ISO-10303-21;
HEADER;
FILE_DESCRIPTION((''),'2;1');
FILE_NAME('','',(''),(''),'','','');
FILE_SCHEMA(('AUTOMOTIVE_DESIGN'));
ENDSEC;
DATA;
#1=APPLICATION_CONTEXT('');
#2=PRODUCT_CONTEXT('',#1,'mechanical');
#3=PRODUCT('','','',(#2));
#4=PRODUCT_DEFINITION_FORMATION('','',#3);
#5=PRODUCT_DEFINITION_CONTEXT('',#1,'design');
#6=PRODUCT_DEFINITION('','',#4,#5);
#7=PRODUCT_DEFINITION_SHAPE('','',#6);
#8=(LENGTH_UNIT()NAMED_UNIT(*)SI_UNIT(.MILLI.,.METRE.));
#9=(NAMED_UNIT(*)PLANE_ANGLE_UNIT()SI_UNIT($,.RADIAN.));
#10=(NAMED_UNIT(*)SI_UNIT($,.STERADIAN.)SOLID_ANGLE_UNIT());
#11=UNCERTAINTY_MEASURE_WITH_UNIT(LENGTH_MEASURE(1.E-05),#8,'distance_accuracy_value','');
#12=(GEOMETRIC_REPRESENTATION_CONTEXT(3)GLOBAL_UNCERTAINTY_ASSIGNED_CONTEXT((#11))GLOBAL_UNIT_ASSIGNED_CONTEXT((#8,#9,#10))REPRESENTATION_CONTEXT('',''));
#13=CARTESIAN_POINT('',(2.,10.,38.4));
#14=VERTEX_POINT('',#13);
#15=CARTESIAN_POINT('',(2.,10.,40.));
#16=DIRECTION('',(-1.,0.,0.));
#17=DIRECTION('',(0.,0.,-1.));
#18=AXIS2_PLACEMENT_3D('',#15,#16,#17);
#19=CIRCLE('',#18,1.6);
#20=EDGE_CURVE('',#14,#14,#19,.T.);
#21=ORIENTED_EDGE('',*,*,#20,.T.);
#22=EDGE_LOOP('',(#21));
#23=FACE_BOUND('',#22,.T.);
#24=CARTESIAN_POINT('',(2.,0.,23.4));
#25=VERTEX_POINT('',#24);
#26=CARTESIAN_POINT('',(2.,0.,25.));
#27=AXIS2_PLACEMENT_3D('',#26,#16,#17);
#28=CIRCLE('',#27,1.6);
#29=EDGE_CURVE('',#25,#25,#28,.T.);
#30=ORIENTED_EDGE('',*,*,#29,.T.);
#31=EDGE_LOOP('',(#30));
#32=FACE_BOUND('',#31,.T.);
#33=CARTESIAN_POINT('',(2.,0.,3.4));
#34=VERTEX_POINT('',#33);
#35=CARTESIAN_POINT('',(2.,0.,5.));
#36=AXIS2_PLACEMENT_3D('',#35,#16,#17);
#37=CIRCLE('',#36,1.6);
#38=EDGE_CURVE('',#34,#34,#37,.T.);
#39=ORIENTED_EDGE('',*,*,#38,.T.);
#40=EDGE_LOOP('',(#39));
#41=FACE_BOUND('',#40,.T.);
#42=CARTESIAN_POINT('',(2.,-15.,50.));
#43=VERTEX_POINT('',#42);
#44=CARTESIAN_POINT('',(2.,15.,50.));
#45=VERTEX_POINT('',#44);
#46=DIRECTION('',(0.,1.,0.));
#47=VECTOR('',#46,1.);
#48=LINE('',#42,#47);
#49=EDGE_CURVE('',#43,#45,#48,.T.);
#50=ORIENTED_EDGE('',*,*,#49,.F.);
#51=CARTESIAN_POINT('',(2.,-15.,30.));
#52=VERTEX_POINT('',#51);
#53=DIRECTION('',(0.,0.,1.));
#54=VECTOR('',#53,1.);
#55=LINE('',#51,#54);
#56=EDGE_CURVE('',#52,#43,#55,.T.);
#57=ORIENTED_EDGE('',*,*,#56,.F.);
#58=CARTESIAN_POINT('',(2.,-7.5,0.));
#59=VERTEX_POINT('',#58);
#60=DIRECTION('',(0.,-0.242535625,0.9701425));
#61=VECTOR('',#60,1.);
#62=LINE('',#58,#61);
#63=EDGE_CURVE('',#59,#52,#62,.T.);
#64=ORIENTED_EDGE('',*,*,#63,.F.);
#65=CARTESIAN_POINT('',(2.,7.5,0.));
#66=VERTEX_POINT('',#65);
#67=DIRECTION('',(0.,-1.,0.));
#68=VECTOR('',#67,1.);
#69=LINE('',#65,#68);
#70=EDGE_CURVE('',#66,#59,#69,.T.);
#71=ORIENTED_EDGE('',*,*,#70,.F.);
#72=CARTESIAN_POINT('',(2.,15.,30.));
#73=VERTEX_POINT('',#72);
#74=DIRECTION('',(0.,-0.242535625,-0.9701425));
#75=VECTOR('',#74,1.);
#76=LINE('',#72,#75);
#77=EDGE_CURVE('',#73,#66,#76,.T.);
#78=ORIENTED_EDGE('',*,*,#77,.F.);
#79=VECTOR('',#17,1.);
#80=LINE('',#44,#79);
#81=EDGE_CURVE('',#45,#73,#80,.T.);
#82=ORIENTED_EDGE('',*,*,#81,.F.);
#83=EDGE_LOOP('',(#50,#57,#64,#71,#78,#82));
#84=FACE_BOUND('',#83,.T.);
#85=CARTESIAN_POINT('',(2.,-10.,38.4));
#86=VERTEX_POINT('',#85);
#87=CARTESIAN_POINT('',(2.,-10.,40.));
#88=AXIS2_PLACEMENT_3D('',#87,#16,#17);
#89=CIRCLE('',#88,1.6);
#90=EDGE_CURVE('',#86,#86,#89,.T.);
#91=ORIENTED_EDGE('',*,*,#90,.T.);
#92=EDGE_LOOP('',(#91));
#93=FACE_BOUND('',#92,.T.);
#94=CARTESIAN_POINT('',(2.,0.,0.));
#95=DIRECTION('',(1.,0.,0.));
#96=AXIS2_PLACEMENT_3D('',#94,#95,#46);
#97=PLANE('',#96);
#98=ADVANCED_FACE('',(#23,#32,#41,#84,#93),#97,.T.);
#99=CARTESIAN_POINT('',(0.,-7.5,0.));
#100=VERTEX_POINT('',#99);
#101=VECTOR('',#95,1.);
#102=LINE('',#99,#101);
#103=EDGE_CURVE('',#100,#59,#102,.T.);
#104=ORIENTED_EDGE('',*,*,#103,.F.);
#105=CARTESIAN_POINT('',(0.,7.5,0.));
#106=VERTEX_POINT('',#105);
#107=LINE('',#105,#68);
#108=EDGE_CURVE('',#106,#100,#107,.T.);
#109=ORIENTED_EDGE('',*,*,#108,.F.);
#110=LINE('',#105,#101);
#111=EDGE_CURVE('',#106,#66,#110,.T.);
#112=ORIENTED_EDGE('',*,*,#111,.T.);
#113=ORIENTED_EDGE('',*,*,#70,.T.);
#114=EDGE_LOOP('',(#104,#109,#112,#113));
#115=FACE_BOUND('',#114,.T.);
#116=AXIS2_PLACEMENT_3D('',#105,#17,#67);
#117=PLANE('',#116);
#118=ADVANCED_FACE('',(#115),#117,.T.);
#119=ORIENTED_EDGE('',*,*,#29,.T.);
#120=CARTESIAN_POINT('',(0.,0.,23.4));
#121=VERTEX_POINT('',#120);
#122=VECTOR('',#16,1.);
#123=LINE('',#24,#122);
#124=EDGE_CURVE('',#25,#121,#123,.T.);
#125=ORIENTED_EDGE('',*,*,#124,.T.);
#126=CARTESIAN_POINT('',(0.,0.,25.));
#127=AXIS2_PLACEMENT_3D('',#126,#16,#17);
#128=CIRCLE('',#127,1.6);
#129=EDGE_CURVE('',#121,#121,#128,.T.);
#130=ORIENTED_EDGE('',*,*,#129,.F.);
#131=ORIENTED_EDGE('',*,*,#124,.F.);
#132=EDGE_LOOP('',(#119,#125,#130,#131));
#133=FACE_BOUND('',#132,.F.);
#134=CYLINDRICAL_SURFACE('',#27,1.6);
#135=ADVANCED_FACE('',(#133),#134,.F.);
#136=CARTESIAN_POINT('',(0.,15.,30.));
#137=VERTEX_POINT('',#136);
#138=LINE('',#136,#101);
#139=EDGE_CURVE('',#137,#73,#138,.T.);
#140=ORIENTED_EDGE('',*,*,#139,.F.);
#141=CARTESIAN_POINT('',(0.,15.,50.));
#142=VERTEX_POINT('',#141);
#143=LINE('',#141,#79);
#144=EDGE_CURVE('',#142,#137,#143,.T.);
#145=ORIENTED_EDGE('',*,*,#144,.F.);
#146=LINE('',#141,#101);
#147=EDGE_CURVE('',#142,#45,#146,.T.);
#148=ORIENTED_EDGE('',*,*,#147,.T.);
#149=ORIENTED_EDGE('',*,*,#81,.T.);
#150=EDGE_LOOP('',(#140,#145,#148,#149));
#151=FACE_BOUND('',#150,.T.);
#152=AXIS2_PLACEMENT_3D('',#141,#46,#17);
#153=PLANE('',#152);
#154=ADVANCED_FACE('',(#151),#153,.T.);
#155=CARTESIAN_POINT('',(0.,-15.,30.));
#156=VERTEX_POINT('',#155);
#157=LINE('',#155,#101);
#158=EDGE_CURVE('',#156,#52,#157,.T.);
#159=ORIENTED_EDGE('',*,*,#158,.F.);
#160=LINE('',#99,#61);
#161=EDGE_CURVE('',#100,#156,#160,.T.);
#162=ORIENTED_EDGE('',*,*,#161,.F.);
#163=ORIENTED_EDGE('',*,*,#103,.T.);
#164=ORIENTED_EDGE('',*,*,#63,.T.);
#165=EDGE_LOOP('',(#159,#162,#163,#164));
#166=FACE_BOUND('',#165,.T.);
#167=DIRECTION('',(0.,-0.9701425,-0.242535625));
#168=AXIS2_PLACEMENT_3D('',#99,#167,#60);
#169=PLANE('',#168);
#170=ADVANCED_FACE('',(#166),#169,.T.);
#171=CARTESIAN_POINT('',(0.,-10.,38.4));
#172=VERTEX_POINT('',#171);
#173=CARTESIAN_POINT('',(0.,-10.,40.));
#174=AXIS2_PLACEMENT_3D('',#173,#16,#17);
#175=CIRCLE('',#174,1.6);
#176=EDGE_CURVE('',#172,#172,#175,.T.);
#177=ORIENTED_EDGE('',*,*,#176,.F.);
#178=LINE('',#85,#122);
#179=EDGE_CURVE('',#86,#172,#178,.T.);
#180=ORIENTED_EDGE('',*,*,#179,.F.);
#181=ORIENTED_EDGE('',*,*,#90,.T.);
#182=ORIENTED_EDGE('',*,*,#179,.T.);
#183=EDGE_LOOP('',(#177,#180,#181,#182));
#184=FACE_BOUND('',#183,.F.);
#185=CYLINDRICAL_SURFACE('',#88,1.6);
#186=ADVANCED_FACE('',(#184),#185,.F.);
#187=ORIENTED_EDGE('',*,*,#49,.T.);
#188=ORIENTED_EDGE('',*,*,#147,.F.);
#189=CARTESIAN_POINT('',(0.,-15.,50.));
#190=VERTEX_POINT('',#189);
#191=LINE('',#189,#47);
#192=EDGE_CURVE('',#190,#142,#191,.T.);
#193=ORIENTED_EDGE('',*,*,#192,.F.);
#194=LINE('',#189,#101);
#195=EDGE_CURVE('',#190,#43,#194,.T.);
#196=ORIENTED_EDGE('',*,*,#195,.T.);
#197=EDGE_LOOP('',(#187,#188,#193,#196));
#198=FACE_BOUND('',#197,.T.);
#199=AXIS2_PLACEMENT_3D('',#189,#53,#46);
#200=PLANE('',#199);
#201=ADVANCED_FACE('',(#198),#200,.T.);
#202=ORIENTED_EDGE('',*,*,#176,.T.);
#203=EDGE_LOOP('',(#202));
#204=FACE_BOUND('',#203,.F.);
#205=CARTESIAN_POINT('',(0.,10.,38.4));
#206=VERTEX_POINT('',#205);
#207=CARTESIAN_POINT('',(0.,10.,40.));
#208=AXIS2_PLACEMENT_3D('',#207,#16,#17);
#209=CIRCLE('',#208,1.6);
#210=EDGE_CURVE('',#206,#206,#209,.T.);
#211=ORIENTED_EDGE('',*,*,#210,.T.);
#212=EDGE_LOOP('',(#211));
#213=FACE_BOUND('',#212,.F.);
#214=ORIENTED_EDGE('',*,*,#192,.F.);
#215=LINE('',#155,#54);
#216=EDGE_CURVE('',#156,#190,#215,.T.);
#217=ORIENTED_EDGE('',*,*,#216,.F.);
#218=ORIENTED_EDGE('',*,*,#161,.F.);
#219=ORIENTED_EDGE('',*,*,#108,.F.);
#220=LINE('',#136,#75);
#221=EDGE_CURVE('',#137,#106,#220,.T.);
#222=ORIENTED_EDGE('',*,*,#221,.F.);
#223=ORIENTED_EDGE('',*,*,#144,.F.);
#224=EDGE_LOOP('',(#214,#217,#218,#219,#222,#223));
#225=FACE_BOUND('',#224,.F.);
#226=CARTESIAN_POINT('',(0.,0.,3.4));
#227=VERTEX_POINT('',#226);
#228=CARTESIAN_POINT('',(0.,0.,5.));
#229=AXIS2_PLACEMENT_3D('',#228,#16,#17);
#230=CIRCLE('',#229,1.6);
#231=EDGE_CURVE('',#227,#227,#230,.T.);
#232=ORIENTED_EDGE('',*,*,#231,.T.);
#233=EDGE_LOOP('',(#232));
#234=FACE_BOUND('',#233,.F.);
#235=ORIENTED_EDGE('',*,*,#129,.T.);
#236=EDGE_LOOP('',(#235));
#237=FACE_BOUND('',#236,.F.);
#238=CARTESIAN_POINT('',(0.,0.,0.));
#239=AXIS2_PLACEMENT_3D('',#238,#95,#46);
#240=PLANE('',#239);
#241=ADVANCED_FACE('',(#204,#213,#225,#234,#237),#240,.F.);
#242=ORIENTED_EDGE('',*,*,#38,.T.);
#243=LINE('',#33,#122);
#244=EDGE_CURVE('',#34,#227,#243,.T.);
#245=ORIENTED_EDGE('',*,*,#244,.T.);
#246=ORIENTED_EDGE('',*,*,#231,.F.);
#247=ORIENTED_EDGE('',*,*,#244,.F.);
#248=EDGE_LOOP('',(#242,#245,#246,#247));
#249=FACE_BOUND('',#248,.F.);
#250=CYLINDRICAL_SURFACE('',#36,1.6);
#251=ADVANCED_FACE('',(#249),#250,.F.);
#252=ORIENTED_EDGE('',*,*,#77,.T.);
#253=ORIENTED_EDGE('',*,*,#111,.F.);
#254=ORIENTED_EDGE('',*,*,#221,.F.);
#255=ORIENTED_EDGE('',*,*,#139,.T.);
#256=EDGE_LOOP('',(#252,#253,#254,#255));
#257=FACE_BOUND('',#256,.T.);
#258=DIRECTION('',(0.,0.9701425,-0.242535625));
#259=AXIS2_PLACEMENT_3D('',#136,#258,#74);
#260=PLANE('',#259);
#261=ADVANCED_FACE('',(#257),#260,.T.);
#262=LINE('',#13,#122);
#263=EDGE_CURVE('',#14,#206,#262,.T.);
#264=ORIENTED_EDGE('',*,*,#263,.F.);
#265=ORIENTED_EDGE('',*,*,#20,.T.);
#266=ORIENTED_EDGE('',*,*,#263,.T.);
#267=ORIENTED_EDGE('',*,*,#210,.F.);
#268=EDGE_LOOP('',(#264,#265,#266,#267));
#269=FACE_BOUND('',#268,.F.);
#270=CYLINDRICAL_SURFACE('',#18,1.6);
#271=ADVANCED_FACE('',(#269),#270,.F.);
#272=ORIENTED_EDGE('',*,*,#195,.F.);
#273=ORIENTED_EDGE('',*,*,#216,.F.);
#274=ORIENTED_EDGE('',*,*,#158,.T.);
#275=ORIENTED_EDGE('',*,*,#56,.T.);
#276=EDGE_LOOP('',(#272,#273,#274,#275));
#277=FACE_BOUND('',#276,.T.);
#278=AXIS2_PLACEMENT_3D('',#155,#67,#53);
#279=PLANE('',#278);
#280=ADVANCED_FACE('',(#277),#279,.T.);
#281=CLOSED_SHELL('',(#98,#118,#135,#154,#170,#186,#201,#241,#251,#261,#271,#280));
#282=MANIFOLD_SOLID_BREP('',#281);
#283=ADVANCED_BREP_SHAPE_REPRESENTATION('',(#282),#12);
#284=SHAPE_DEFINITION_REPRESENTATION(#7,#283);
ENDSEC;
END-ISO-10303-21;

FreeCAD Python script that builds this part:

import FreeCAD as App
import Part
import Sketcher

V = App.Vector
Q = App.Units.Quantity

doc = App.newDocument("Part")
body = doc.addObject("PartDesign::Body", "Body")

sketch1 = body.newObject("Sketcher::SketchObject", "Sketch")
sketch1.AttachmentSupport = (doc.getObject("YZ_Plane"), [""])
sketch1.MapMode = "FlatFace"
sketch1.addGeometry([
    Part.LineSegment(V(-15, 50, 0), V(-15, 30, 0)),
    Part.LineSegment(V(-15, 30, 0), V(-8, 0, 0)),
    Part.LineSegment(V(-8, 0, 0), V(8, 0, 0)),
    Part.LineSegment(V(8, 0, 0), V(15, 30, 0)),
    Part.LineSegment(V(15, 30, 0), V(15, 50, 0)),
    Part.LineSegment(V(15, 50, 0), V(-15, 50, 0)),
], False)
sketch1.addConstraint([
    Sketcher.Constraint("Coincident", 0, 2, 1, 1),
    Sketcher.Constraint("Coincident", 1, 2, 2, 1),
    Sketcher.Constraint("Coincident", 2, 2, 3, 1),
    Sketcher.Constraint("Coincident", 3, 2, 4, 1),
    Sketcher.Constraint("Coincident", 4, 2, 5, 1),
    Sketcher.Constraint("Coincident", 5, 2, 0, 1),
    Sketcher.Constraint("Vertical", 0),
    Sketcher.Constraint("Horizontal", 2),
    Sketcher.Constraint("Vertical", 4),
    Sketcher.Constraint("Horizontal", 5),
    Sketcher.Constraint("Symmetric", 1, 2, 2, 2, -1, 1),
    Sketcher.Constraint("Symmetric", 0, 2, 3, 2, -2),
    Sketcher.Constraint("DistanceX", 2, 1, 2, 2, Q("15 mm")),
    Sketcher.Constraint("DistanceX", 5, 2, 5, 1, Q("30 mm")),
    Sketcher.Constraint("DistanceY", 0, 2, 0, 1, Q("20 mm")),
    Sketcher.Constraint("DistanceY", -1, 1, 0, 2, Q("30 mm")),
])
pad1 = body.newObject("PartDesign::Pad", "Pad")
pad1.Profile = sketch1
pad1.Length = 2

sketch2 = body.newObject("Sketcher::SketchObject", "Sketch001")
sketch2.AttachmentSupport = (doc.getObject("YZ_Plane"), [""])
sketch2.MapMode = "FlatFace"
sketch2.AttachmentOffset = App.Placement(V(0, 0, 2), App.Rotation())
sketch2.addGeometry([
    Part.Circle(V(10, 40, 0), V(0, 0, 1), 1.6),
    Part.Circle(V(-10, 40, 0), V(0, 0, 1), 1.6),
    Part.Circle(V(0, 25, 0), V(0, 0, 1), 1.6),
    Part.Circle(V(0, 5, 0), V(0, 0, 1), 1.6),
], False)
sketch2.addConstraint([
    Sketcher.Constraint("Equal", 0, 1),
    Sketcher.Constraint("Equal", 1, 2),
    Sketcher.Constraint("Equal", 2, 3),
    Sketcher.Constraint("Symmetric", 0, 3, 1, 3, -2),
    Sketcher.Constraint("PointOnObject", 2, 3, -2),
    Sketcher.Constraint("PointOnObject", 3, 3, -2),
    Sketcher.Constraint("Diameter", 0, Q("3.2 mm")),
    Sketcher.Constraint("DistanceX", -1, 1, 0, 3, Q("10 mm")),
    Sketcher.Constraint("DistanceY", -1, 1, 0, 3, Q("40 mm")),
    Sketcher.Constraint("DistanceY", -1, 1, 2, 3, Q("25 mm")),
    Sketcher.Constraint("DistanceY", -1, 1, 3, 3, Q("5 mm")),
])
doc.recompute()
hole = body.newObject("PartDesign::Hole", "Hole")
hole.Profile = sketch2
hole.ThreadType = "None"
hole.Diameter = 3.2
hole.DepthType = "ThroughAll"

doc.recompute()
